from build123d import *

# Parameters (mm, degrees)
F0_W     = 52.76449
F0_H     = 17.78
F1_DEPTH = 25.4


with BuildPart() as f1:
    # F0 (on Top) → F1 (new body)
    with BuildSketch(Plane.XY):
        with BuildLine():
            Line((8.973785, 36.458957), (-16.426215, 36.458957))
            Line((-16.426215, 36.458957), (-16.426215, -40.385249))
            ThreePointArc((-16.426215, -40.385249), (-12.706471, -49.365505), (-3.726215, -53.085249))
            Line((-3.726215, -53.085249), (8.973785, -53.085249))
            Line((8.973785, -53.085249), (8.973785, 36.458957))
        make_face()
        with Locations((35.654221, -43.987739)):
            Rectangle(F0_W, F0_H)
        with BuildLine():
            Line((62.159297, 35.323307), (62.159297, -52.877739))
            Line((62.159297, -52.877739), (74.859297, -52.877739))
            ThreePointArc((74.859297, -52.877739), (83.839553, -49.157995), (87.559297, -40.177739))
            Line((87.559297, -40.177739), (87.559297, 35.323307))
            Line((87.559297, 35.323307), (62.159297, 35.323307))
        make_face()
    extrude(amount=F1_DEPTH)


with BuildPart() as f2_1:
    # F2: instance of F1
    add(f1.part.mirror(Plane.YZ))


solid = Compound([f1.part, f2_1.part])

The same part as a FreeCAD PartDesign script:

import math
import FreeCAD as App
import Part
import Sketcher

V = App.Vector
Q = App.Units.Quantity


def add_polygon(sketch, points):
    """Adds a closed chain of lines whose ends are joined by coincident constraints."""
    first, n = sketch.GeometryCount, len(points)
    for a, b in zip(points, points[1:] + points[:1]):
        sketch.addGeometry(Part.LineSegment(App.Vector(*a, 0), App.Vector(*b, 0)), False)
    for i in range(n):
        sketch.addConstraint(Sketcher.Constraint("Coincident", first + i, 2, first + (i + 1) % n, 1))

doc = App.newDocument("Part")
body = doc.addObject("PartDesign::Body", "Body")
body.AllowCompound = True

sketch1 = body.newObject("Sketcher::SketchObject", "Sketch")
sketch1.AttachmentSupport = (doc.getObject("XY_Plane"), [""])
sketch1.MapMode = "FlatFace"
sketch1.addGeometry(Part.LineSegment(V(9, 36, 0), V(-16, 36, 0)), False)
sketch1.addGeometry(Part.LineSegment(V(-16, 36, 0), V(-16, -40, 0)), False)
sketch1.addGeometry(Part.ArcOfCircle(Part.Circle(V(-4, -40, 0), V(0, 0, 1), 13), math.radians(-180), math.radians(-90)), False)
sketch1.addGeometry(Part.LineSegment(V(-4, -53, 0), V(9, -53, 0)), False)
sketch1.addGeometry(Part.LineSegment(V(9, -53, 0), V(9, 36, 0)), False)
add_polygon(sketch1, [(9, -35), (9, -53), (62, -53), (62, -35)])
sketch1.addGeometry(Part.LineSegment(V(62, 35, 0), V(62, -53, 0)), False)
sketch1.addGeometry(Part.LineSegment(V(62, -53, 0), V(75, -53, 0)), False)
sketch1.addGeometry(Part.ArcOfCircle(Part.Circle(V(75, -40, 0), V(0, 0, 1), 13), math.radians(-90), math.radians(0)), False)
sketch1.addGeometry(Part.LineSegment(V(88, -40, 0), V(88, 35, 0)), False)
sketch1.addGeometry(Part.LineSegment(V(88, 35, 0), V(62, 35, 0)), False)
sketch1.addConstraint([
    Sketcher.Constraint("Coincident", 0, 2, 1, 1),
    Sketcher.Constraint("Tangent", 1, 2, 2, 1),
    Sketcher.Constraint("Tangent", 2, 2, 3, 1),
    Sketcher.Constraint("Coincident", 3, 2, 4, 1),
    Sketcher.Constraint("Coincident", 4, 2, 0, 1),
    Sketcher.Constraint("Coincident", 9, 2, 10, 1),
    Sketcher.Constraint("Tangent", 10, 2, 11, 1),
    Sketcher.Constraint("Tangent", 11, 2, 12, 1),
    Sketcher.Constraint("Coincident", 12, 2, 13, 1),
    Sketcher.Constraint("Coincident", 13, 2, 9, 1),
    Sketcher.Constraint("Horizontal", 0),
    Sketcher.Constraint("Vertical", 1),
    Sketcher.Constraint("Horizontal", 3),
    Sketcher.Constraint("Vertical", 4),
    Sketcher.Constraint("Vertical", 5),
    Sketcher.Constraint("Horizontal", 6),
    Sketcher.Constraint("Vertical", 7),
    Sketcher.Constraint("Horizontal", 8),
    Sketcher.Constraint("Vertical", 9),
    Sketcher.Constraint("Horizontal", 10),
    Sketcher.Constraint("Vertical", 12),
    Sketcher.Constraint("Horizontal", 13),
    Sketcher.Constraint("Equal", 2, 11),
    Sketcher.Constraint("Horizontal", 6, 2, 9, 2),
    Sketcher.Constraint("Equal", 3, 10),
    Sketcher.Constraint("Radius", 2, Q("0.5 in")),
    Sketcher.Constraint("DistanceX", 0, 2, 0, 1, Q("1 in")),
    Sketcher.Constraint("DistanceY", 5, 2, 5, 1, Q("0.7 in")),
    Sketcher.Constraint("DistanceX", 6, 1, 6, 2, 52.76449),
    Sketcher.Constraint("DistanceY", 1, 2, 1, 1, 76.844206),
    Sketcher.Constraint("DistanceY", 9, 2, 9, 1, 88.201046),
    Sketcher.Constraint("DistanceY", 2, 3, -1, 1, 40.385249),
    Sketcher.Constraint("DistanceY", 11, 3, -1, 1, 40.177739),
    Sketcher.Constraint("DistanceX", 2, 3, 11, 3, 78.585511),
    Sketcher.Constraint("DistanceX", 3, 2, 5, 2, 0.298191),
    Sketcher.Constraint("DistanceX", 2, 3, -1, 1, 3.726215),
])
pad1 = body.newObject("PartDesign::Pad", "Pad")
pad1.Profile = sketch1
pad1.Length = Q("1 in")
body2 = doc.addObject("PartDesign::Body", "Body001")
body2.AllowCompound = True
doc.recompute()

mirroring = doc.addObject("Part::Mirroring", "Mirroring")
mirroring.Source = body
mirroring.Base = V(0, 0, 0)
mirroring.Normal = V(1, 0, 0)
body2.BaseFeature = mirroring
doc.recompute()
mirroring.Visibility = False

doc.recompute()
